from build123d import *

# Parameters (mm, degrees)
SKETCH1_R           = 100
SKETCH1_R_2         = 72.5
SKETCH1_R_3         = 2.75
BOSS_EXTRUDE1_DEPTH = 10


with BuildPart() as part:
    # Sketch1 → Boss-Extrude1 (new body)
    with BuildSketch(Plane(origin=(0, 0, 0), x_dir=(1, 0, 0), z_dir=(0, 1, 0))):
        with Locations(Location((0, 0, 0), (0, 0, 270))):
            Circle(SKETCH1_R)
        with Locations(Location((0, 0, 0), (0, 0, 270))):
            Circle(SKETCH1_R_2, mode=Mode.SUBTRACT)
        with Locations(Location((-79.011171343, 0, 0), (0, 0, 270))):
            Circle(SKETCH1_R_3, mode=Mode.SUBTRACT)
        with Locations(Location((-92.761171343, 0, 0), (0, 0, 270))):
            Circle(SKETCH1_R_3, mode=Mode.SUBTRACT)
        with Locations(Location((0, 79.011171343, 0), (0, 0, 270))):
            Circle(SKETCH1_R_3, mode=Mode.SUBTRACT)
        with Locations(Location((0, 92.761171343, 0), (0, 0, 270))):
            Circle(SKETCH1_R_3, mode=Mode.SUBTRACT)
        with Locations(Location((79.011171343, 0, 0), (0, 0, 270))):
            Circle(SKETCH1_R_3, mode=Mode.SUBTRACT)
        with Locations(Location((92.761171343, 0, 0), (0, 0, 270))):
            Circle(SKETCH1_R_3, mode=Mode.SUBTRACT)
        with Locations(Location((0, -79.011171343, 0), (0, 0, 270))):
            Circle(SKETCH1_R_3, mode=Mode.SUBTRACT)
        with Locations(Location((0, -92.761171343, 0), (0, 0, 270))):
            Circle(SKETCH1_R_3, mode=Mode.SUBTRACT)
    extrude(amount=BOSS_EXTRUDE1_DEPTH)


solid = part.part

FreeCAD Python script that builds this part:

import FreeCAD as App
import Part
import Sketcher

V = App.Vector
Q = App.Units.Quantity

doc = App.newDocument("Part")
body = doc.addObject("PartDesign::Body", "Body")

# Sketch on XZ plane
sketch1 = doc.addObject("Sketcher::SketchObject", "Sketch")
body.addObject(sketch1)
sketch1.AttachmentSupport = (doc.XZ_Plane, [""])
sketch1.MapMode = "FlatFace"
sketch1.addGeometry(Part.Circle(V(0, 0, 0), V(0, 0, 1), 100), False)
sketch1.addGeometry(Part.Circle(V(0, -92.761171, 0), V(0, 0, 1), 2.75), False)
sketch1.addGeometry(Part.Circle(V(0, -79.011171, 0), V(0, 0, 1), 2.75), False)
sketch1.addGeometry(Part.Circle(V(-92.761171, 0, 0), V(0, 0, 1), 2.75), False)
sketch1.addGeometry(Part.Circle(V(-79.011171, 0, 0), V(0, 0, 1), 2.75), False)
sketch1.addGeometry(Part.Circle(V(79.011171, 0, 0), V(0, 0, 1), 2.75), False)
sketch1.addGeometry(Part.Circle(V(92.761171, 0, 0), V(0, 0, 1), 2.75), False)
sketch1.addGeometry(Part.Circle(V(0, 0, 0), V(0, 0, 1), 72.5), False)
sketch1.addGeometry(Part.Circle(V(0, 79.011171, 0), V(0, 0, 1), 2.75), False)
sketch1.addGeometry(Part.Circle(V(0, 92.761171, 0), V(0, 0, 1), 2.75), False)
sketch1.addConstraint(Sketcher.Constraint("Coincident", 0, 3, -1, 1))
sketch1.addConstraint(Sketcher.Constraint("Coincident", 7, 3, -1, 1))
sketch1.addConstraint(Sketcher.Constraint("Equal", 1, 2))
sketch1.addConstraint(Sketcher.Constraint("Equal", 2, 3))
sketch1.addConstraint(Sketcher.Constraint("Equal", 3, 4))
sketch1.addConstraint(Sketcher.Constraint("Equal", 4, 5))
sketch1.addConstraint(Sketcher.Constraint("Equal", 5, 6))
sketch1.addConstraint(Sketcher.Constraint("Equal", 6, 8))
sketch1.addConstraint(Sketcher.Constraint("Equal", 8, 9))
sketch1.addConstraint(Sketcher.Constraint("Symmetric", 4, 3, 5, 3, -1, 1))
sketch1.addConstraint(Sketcher.Constraint("Symmetric", 3, 3, 6, 3, -1, 1))
sketch1.addConstraint(Sketcher.Constraint("Symmetric", 2, 3, 8, 3, -1, 1))
sketch1.addConstraint(Sketcher.Constraint("Symmetric", 1, 3, 9, 3, -1, 1))
sketch1.addConstraint(Sketcher.Constraint("PointOnObject", 1, 3, -2))
sketch1.addConstraint(Sketcher.Constraint("PointOnObject", 2, 3, -2))
sketch1.addConstraint(Sketcher.Constraint("PointOnObject", 3, 3, -1))
sketch1.addConstraint(Sketcher.Constraint("PointOnObject", 4, 3, -1))
sketch1.addConstraint(Sketcher.Constraint("Diameter", 0, Q("200 mm")))
sketch1.addConstraint(Sketcher.Constraint("Diameter", 7, Q("145 mm")))
sketch1.addConstraint(Sketcher.Constraint("Diameter", 1, Q("5.5 mm")))
sketch1.addConstraint(Sketcher.Constraint("DistanceY", 1, 3, 2, 3, Q("13.75 mm")))
sketch1.addConstraint(Sketcher.Constraint("DistanceX", 3, 3, 4, 3, Q("13.75 mm")))
sketch1.addConstraint(Sketcher.Constraint("DistanceY", 1, 3, -1, 1, Q("92.761171 mm")))
sketch1.addConstraint(Sketcher.Constraint("DistanceX", 3, 3, -1, 1, Q("92.761171 mm")))
pad1 = doc.addObject("PartDesign::Pad", "Pad")
body.addObject(pad1)
pad1.Profile = sketch1
pad1.Length = 10
pad1.Reversed = True

doc.recompute()
